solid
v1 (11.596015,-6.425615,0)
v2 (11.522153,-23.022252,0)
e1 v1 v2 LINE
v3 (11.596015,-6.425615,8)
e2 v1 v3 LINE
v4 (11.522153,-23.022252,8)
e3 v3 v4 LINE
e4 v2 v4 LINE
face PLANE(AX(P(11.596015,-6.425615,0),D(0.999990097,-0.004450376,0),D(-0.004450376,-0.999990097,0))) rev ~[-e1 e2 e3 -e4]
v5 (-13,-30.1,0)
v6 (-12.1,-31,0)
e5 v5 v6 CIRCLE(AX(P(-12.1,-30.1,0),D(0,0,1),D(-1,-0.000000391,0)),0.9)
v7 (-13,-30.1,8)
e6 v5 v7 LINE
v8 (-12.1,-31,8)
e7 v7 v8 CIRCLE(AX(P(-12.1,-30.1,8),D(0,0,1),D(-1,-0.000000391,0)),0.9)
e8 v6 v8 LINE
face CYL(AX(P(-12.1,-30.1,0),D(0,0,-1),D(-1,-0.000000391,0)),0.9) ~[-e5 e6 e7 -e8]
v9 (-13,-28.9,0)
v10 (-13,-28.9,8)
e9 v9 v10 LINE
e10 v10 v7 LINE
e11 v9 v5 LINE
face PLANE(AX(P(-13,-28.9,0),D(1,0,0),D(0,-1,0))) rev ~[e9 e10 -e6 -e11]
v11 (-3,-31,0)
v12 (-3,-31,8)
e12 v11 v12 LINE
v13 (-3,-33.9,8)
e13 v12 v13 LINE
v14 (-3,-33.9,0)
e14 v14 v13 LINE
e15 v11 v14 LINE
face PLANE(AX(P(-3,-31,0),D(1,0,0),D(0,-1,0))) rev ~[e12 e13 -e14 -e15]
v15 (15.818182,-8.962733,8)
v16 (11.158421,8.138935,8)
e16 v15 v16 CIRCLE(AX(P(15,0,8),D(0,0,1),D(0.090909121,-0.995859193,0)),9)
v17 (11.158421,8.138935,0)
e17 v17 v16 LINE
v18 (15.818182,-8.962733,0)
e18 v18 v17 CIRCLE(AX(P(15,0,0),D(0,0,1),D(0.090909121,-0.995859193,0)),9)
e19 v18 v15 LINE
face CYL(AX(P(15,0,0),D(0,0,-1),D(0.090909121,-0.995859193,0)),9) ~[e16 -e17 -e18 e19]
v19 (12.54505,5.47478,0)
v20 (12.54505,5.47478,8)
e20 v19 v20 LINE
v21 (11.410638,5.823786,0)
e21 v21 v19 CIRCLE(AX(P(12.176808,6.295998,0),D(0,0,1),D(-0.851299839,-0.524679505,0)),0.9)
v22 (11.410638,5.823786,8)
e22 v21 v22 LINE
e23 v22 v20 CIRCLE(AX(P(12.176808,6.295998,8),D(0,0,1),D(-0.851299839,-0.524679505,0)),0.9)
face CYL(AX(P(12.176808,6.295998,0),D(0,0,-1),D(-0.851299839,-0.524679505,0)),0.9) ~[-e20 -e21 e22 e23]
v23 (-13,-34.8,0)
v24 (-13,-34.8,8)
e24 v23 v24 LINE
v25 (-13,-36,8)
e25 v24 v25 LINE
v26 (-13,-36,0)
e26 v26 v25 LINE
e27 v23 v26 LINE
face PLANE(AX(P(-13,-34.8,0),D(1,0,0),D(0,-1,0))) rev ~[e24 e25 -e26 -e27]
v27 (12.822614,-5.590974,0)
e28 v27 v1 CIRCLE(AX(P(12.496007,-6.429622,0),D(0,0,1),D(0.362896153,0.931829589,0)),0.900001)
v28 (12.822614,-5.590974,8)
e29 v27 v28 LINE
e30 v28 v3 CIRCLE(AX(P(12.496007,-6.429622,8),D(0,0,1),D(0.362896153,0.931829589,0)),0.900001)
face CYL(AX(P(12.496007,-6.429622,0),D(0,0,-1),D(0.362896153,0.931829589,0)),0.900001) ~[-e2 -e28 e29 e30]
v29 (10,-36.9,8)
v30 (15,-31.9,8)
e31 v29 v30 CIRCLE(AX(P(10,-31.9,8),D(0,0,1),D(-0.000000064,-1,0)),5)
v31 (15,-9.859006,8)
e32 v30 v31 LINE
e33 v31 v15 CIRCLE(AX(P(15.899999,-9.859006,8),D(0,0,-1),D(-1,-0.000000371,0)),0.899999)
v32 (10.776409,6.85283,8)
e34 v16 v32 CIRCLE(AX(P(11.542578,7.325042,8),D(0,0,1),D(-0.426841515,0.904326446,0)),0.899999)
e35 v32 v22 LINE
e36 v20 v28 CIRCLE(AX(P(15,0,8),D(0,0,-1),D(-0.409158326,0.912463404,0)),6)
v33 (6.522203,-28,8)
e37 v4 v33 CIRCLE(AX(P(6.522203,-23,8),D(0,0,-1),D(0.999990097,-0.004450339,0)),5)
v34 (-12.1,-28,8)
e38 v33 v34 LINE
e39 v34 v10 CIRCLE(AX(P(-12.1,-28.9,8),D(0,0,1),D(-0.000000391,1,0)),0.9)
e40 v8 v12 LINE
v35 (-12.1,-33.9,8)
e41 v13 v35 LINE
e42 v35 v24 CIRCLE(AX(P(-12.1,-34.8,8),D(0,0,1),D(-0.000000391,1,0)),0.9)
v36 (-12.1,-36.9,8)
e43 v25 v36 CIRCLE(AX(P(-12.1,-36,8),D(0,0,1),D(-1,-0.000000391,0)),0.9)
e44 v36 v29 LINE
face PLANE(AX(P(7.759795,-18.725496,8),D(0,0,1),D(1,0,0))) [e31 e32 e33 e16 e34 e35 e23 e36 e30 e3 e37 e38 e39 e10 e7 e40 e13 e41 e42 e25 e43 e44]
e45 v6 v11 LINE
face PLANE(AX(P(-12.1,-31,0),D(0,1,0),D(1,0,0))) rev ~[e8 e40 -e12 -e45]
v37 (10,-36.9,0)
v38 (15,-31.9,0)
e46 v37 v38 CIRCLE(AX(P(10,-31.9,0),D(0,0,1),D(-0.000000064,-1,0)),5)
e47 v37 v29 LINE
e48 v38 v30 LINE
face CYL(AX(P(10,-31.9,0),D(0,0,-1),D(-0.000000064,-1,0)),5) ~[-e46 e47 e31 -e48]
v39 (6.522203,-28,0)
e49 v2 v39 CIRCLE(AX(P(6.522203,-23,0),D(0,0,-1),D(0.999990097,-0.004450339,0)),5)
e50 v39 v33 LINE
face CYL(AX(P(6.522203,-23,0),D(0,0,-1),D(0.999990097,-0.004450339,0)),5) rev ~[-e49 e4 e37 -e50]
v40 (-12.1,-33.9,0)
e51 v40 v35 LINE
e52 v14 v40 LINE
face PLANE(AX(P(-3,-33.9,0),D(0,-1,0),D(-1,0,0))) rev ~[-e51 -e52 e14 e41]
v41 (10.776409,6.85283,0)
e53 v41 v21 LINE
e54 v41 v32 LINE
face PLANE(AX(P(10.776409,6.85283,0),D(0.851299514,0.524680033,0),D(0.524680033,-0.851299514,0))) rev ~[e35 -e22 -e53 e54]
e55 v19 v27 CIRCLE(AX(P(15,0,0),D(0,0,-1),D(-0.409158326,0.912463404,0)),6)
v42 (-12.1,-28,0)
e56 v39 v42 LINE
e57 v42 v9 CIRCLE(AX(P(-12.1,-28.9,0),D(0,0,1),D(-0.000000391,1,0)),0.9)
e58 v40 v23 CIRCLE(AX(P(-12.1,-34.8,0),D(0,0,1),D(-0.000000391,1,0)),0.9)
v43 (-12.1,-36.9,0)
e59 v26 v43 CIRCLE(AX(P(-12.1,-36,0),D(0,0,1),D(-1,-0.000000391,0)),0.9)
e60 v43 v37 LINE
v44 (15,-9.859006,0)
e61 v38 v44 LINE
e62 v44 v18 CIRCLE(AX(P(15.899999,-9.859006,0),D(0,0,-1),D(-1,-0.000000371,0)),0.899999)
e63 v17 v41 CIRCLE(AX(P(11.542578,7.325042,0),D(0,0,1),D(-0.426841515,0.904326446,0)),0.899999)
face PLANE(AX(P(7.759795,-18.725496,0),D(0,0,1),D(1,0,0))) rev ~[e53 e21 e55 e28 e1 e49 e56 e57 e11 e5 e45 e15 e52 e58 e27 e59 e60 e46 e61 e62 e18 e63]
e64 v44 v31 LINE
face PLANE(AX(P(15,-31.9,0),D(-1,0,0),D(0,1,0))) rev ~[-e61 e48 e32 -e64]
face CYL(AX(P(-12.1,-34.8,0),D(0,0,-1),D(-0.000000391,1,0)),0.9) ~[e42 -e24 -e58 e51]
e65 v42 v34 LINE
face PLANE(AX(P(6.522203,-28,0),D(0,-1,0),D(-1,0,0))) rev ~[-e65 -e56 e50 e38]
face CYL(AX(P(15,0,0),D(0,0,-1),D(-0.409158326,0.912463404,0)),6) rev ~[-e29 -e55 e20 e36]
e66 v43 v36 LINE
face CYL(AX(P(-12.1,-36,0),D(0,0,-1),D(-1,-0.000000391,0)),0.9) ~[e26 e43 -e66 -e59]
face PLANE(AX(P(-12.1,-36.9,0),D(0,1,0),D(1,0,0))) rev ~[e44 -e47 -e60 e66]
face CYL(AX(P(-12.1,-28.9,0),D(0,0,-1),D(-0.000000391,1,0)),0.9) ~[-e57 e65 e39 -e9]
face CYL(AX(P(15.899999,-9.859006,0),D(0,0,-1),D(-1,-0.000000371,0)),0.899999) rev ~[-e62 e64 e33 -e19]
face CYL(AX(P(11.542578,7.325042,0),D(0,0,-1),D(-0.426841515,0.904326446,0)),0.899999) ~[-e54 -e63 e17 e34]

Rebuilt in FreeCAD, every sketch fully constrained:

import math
import FreeCAD as App
import Part
import Sketcher
Q = App.Units.Quantity

doc = App.newDocument("Part")
body = doc.addObject("PartDesign::Body", "Body")

# Sketch on XY plane
sketch1 = body.newObject("Sketcher::SketchObject", "Sketch")
sketch1.AttachmentSupport = (doc.getObject("XY_Plane"), [""])
sketch1.MapMode = "FlatFace"
sketch1.addGeometry([
    Part.ArcOfCircle(Part.Circle(App.Vector(15, 0, 0), App.Vector(0, 0, 1), 6), math.radians(-111.278258), math.radians(114.151973)),  # 0
    Part.ArcOfCircle(Part.Circle(App.Vector(12.496007, -6.429622, 0), App.Vector(0, 0, 1), 0.900001), math.radians(68.721834), math.radians(179.744933)),  # 1
    Part.LineSegment(App.Vector(11.596015, -6.425615, 0), App.Vector(11.522153, -23.022252, 0)),  # 2
    Part.ArcOfCircle(Part.Circle(App.Vector(6.522203, -23, 0), App.Vector(0, 0, 1), 5), math.radians(-89.999998), math.radians(-0.254987)),  # 3
    Part.LineSegment(App.Vector(6.522203, -28, 0), App.Vector(-12.1, -28, 0)),  # 4
    Part.ArcOfCircle(Part.Circle(App.Vector(-12.1, -28.9, 0), App.Vector(0, 0, 1), 0.9), math.radians(90.000022), math.radians(179.999978)),  # 5
    Part.LineSegment(App.Vector(-13, -28.9, 0), App.Vector(-13, -30.1, 0)),  # 6
    Part.ArcOfCircle(Part.Circle(App.Vector(-12.1, -30.1, 0), App.Vector(0, 0, 1), 0.9), math.radians(-179.999978), math.radians(-90.000022)),  # 7
    Part.LineSegment(App.Vector(-12.1, -31, 0), App.Vector(-3, -31, 0)),  # 8
    Part.LineSegment(App.Vector(-3, -31, 0), App.Vector(-3, -33.9, 0)),  # 9
    Part.LineSegment(App.Vector(-3, -33.9, 0), App.Vector(-12.1, -33.9, 0)),  # 10
    Part.ArcOfCircle(Part.Circle(App.Vector(-12.1, -34.8, 0), App.Vector(0, 0, 1), 0.9), math.radians(90.000022), math.radians(179.999978)),  # 11
    Part.LineSegment(App.Vector(-13, -34.8, 0), App.Vector(-13, -36, 0)),  # 12
    Part.ArcOfCircle(Part.Circle(App.Vector(-12.1, -36, 0), App.Vector(0, 0, 1), 0.9), math.radians(-179.999978), math.radians(-90.000022)),  # 13
    Part.LineSegment(App.Vector(-12.1, -36.9, 0), App.Vector(10, -36.9, 0)),  # 14
    Part.ArcOfCircle(Part.Circle(App.Vector(10, -31.9, 0), App.Vector(0, 0, 1), 5), math.radians(-90.000004), math.radians(0.000004)),  # 15
    Part.LineSegment(App.Vector(15, -31.9, 0), App.Vector(15, -9.859006, 0)),  # 16
    Part.ArcOfCircle(Part.Circle(App.Vector(15.899999, -9.859006, 0), App.Vector(0, 0, 1), 0.899999), math.radians(95.215857), math.radians(180.000021)),  # 17
    Part.ArcOfCircle(Part.Circle(App.Vector(15, 0, 0), App.Vector(0, 0, 1), 9), math.radians(-84.78409), math.radians(115.267319)),  # 18
    Part.ArcOfCircle(Part.Circle(App.Vector(11.542578, 7.325042, 0), App.Vector(0, 0, 1), 0.899999), math.radians(115.267281), math.radians(211.646702)),  # 19
    Part.LineSegment(App.Vector(10.776409, 6.85283, 0), App.Vector(11.410638, 5.823786, 0)),  # 20
    Part.ArcOfCircle(Part.Circle(App.Vector(12.176808, 6.295998, 0), App.Vector(0, 0, 1), 0.9), math.radians(-148.35333), math.radians(-65.848082)),  # 21
], False)
sketch1.addConstraint([
    Sketcher.Constraint("Tangent", 0, 1, 1, 1),
    Sketcher.Constraint("Tangent", 1, 2, 2, 1),
    Sketcher.Constraint("Tangent", 2, 2, 3, 2),
    Sketcher.Constraint("Tangent", 3, 1, 4, 1),
    Sketcher.Constraint("Tangent", 4, 2, 5, 1),
    Sketcher.Constraint("Tangent", 5, 2, 6, 1),
    Sketcher.Constraint("Tangent", 6, 2, 7, 1),
    Sketcher.Constraint("Tangent", 7, 2, 8, 1),
    Sketcher.Constraint("Coincident", 8, 2, 9, 1),
    Sketcher.Constraint("Coincident", 9, 2, 10, 1),
    Sketcher.Constraint("Tangent", 10, 2, 11, 1),
    Sketcher.Constraint("Tangent", 11, 2, 12, 1),
    Sketcher.Constraint("Tangent", 12, 2, 13, 1),
    Sketcher.Constraint("Tangent", 13, 2, 14, 1),
    Sketcher.Constraint("Tangent", 14, 2, 15, 1),
    Sketcher.Constraint("Tangent", 15, 2, 16, 1),
    Sketcher.Constraint("Tangent", 16, 2, 17, 2),
    Sketcher.Constraint("Tangent", 17, 1, 18, 1),
    Sketcher.Constraint("Tangent", 18, 2, 19, 1),
    Sketcher.Constraint("Tangent", 19, 2, 20, 1),
    Sketcher.Constraint("Tangent", 20, 2, 21, 1),
    Sketcher.Constraint("Tangent", 21, 2, 0, 2),
    Sketcher.Constraint("Horizontal", 4),
    Sketcher.Constraint("Vertical", 6),
    Sketcher.Constraint("Horizontal", 8),
    Sketcher.Constraint("Vertical", 9),
    Sketcher.Constraint("Horizontal", 10),
    Sketcher.Constraint("Vertical", 12),
    Sketcher.Constraint("Horizontal", 14),
    Sketcher.Constraint("Vertical", 16),
    Sketcher.Constraint("Coincident", 18, 3, 0, 3),
    Sketcher.Constraint("Equal", 1, 5),
    Sketcher.Constraint("Equal", 5, 7),
    Sketcher.Constraint("Equal", 7, 11),
    Sketcher.Constraint("Equal", 11, 13),
    Sketcher.Constraint("Equal", 3, 15),
    Sketcher.Constraint("Equal", 13, 17),
    Sketcher.Constraint("Equal", 17, 19),
    Sketcher.Constraint("Equal", 19, 21),
    Sketcher.Constraint("PointOnObject", 0, 3, -1),
    Sketcher.Constraint("Vertical", 7, 3, 11, 3),
    Sketcher.Constraint("Vertical", 18, 3, 15, 2),
    Sketcher.Constraint("Equal", 6, 12),
    Sketcher.Constraint("Radius", 0, Q("6 mm")),
    Sketcher.Constraint("Radius", 3, Q("5 mm")),
    Sketcher.Constraint("Radius", 18, Q("9 mm")),
    Sketcher.Constraint("Radius", 1, Q("0.900001 mm")),
    Sketcher.Constraint("DistanceX", 8, 1, 8, 2, Q("9.1 mm")),
    Sketcher.Constraint("DistanceX", 14, 1, 14, 2, Q("22.1 mm")),
    Sketcher.Constraint("DistanceY", 6, 2, 6, 1, Q("1.2 mm")),
    Sketcher.Constraint("DistanceY", 9, 2, 9, 1, Q("2.9 mm")),
    Sketcher.Constraint("DistanceX", -1, 1, 0, 3, Q("15 mm")),
    Sketcher.Constraint("DistanceY", 3, 3, -1, 1, Q("23 mm")),
    Sketcher.Constraint("DistanceY", 18, 3, 21, 3, Q("6.295998 mm")),
    Sketcher.Constraint("Distance", 2, Q("16.596801 mm")),
    Sketcher.Constraint("DistanceX", 21, 3, 1, 3, Q("0.319199 mm")),
    Sketcher.Constraint("DistanceX", 19, 2, 21, 3, Q("1.400399 mm")),
])
pad1 = body.newObject("PartDesign::Pad", "Pad")
pad1.Profile = sketch1
pad1.Length = 8

doc.recompute()
